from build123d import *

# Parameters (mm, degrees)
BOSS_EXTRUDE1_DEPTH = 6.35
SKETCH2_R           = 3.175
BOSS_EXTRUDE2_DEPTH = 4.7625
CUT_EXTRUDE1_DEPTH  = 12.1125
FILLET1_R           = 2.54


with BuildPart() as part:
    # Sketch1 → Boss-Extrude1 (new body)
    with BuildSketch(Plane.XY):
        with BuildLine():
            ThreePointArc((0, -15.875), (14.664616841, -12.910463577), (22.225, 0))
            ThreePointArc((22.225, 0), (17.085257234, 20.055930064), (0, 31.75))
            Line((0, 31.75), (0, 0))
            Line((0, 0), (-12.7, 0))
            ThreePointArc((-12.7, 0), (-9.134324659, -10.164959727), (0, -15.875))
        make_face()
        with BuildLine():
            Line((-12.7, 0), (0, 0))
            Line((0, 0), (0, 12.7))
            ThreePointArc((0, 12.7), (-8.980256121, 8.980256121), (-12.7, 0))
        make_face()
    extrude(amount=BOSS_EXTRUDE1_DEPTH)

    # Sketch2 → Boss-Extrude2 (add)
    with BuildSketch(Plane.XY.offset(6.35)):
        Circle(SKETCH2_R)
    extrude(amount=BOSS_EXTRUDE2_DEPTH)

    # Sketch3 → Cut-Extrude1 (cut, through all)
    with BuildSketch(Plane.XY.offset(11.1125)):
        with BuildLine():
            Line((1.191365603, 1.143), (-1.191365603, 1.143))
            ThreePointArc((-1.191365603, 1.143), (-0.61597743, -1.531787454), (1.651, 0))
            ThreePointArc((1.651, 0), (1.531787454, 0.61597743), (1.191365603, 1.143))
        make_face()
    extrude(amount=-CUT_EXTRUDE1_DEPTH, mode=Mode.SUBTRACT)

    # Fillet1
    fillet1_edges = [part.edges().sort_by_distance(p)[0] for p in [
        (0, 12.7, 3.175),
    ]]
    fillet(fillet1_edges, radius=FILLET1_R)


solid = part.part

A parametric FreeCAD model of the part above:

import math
import FreeCAD as App
import Part
import Sketcher
from FreeCAD import Vector
Q = App.Units.Quantity


def edges_at(feature, points):
    """Names of the edges that pass closest to the given points."""
    edges = feature.Shape.Edges
    near = lambda p: min(range(len(edges)), key=lambda i: edges[i].distToShape(Part.Vertex(*p))[0])
    return sorted({f"Edge{near(p) + 1}" for p in points})

doc = App.newDocument("Part")
body = doc.addObject("PartDesign::Body", "Body")

sketch1 = doc.addObject("Sketcher::SketchObject", "Sketch")
body.addObject(sketch1)
sketch1.AttachmentSupport = (doc.XY_Plane, [""])
sketch1.MapMode = "FlatFace"
sketch1.addGeometry(Part.ArcOfCircle(Part.Circle(Vector(4, 2, 0), Vector(0, 0, 1), 18), math.radians(-103), math.radians(-6)), False)
sketch1.addGeometry(Part.ArcOfCircle(Part.Circle(Vector(-7, 3, 0), Vector(0, 0, 1), 29), math.radians(-6), math.radians(76)), False)
sketch1.addGeometry(Part.LineSegment(Vector(0, 32, 0), Vector(0, 13, 0)), False)
sketch1.addGeometry(Part.ArcOfCircle(Part.Circle(Vector(0, 0, 0), Vector(0, 0, 1), 13), math.radians(90), math.radians(180)), False)
sketch1.addGeometry(Part.ArcOfCircle(Part.Circle(Vector(4, 0, 0), Vector(0, 0, 1), 16), math.radians(180), math.radians(257)), False)
sketch1.addConstraint(Sketcher.Constraint("Tangent", 0, 2, 1, 1))
sketch1.addConstraint(Sketcher.Constraint("Coincident", 1, 2, 2, 1))
sketch1.addConstraint(Sketcher.Constraint("Coincident", 2, 2, 3, 1))
sketch1.addConstraint(Sketcher.Constraint("Tangent", 3, 2, 4, 1))
sketch1.addConstraint(Sketcher.Constraint("Tangent", 4, 2, 0, 1))
sketch1.addConstraint(Sketcher.Constraint("Vertical", 2))
sketch1.addConstraint(Sketcher.Constraint("Coincident", 3, 3, -1, 1))
sketch1.addConstraint(Sketcher.Constraint("PointOnObject", 4, 3, -1))
sketch1.addConstraint(Sketcher.Constraint("PointOnObject", 0, 2, -1))
sketch1.addConstraint(Sketcher.Constraint("PointOnObject", 1, 2, -2))
sketch1.addConstraint(Sketcher.Constraint("PointOnObject", 4, 2, -2))
sketch1.addConstraint(Sketcher.Constraint("Radius", 3, Q("0.5 in")))
sketch1.addConstraint(Sketcher.Constraint("Radius", 4, Q("0.640625 in")))
sketch1.addConstraint(Sketcher.Constraint("DistanceY", 2, 2, 2, 1, Q("0.75 in")))
sketch1.addConstraint(Sketcher.Constraint("DistanceX", -1, 1, 0, 2, Q("0.875 in")))
pad1 = doc.addObject("PartDesign::Pad", "Pad")
body.addObject(pad1)
pad1.Profile = sketch1
pad1.Length = Q("0.25 in")

sketch2 = doc.addObject("Sketcher::SketchObject", "Sketch001")
body.addObject(sketch2)
sketch2.AttachmentSupport = (doc.XY_Plane, [""])
sketch2.MapMode = "FlatFace"
sketch2.AttachmentOffset = App.Placement(Vector(0, 0, 0.25 * 25.4), App.Rotation())
sketch2.addGeometry(Part.Circle(Vector(0, 0, 0), Vector(0, 0, 1), 3.2), False)
sketch2.addConstraint(Sketcher.Constraint("Coincident", 0, 3, -1, 1))
sketch2.addConstraint(Sketcher.Constraint("Diameter", 0, Q("0.25 in")))
pad2 = doc.addObject("PartDesign::Pad", "Pad001")
body.addObject(pad2)
pad2.Profile = sketch2
pad2.Length = Q("0.1875 in")

sketch3 = doc.addObject("Sketcher::SketchObject", "Sketch002")
body.addObject(sketch3)
sketch3.AttachmentSupport = (doc.XY_Plane, [""])
sketch3.MapMode = "FlatFace"
sketch3.AttachmentOffset = App.Placement(Vector(0, 0, 0.4375 * 25.4), App.Rotation())
sketch3.addGeometry(Part.LineSegment(Vector(1.2, 1.1, 0), Vector(-1.2, 1.1, 0)), False)
sketch3.addGeometry(Part.ArcOfCircle(Part.Circle(Vector(0, 0, 0), Vector(0, 0, 1), 1.7), math.radians(136), math.radians(360)), False)
sketch3.addGeometry(Part.ArcOfCircle(Part.Circle(Vector(0, 0, 0), Vector(0, 0, 1), 1.7), math.radians(0), math.radians(44)), False)
sketch3.addConstraint(Sketcher.Constraint("Coincident", 0, 2, 1, 1))
sketch3.addConstraint(Sketcher.Constraint("Tangent", 1, 2, 2, 1))
sketch3.addConstraint(Sketcher.Constraint("Coincident", 2, 2, 0, 1))
sketch3.addConstraint(Sketcher.Constraint("Horizontal", 0))
sketch3.addConstraint(Sketcher.Constraint("Coincident", 1, 3, -1, 1))
sketch3.addConstraint(Sketcher.Constraint("Equal", 1, 2))
sketch3.addConstraint(Sketcher.Constraint("PointOnObject", 1, 2, -1))
sketch3.addConstraint(Sketcher.Constraint("Radius", 1, Q("0.065 in")))
sketch3.addConstraint(Sketcher.Constraint("DistanceY", -1, 1, 0, 2, Q("0.045 in")))
pocket1 = doc.addObject("PartDesign::Pocket", "Pocket")
body.addObject(pocket1)
pocket1.Profile = sketch3
pocket1.Type = "ThroughAll"
doc.recompute()

fillet = doc.addObject("PartDesign::Fillet", "Fillet")
body.addObject(fillet)
fillet.Base = (pocket1, edges_at(pocket1, [(0, 12.7, 3.175)]))
fillet.Radius = Q("0.1 in")

doc.recompute()
